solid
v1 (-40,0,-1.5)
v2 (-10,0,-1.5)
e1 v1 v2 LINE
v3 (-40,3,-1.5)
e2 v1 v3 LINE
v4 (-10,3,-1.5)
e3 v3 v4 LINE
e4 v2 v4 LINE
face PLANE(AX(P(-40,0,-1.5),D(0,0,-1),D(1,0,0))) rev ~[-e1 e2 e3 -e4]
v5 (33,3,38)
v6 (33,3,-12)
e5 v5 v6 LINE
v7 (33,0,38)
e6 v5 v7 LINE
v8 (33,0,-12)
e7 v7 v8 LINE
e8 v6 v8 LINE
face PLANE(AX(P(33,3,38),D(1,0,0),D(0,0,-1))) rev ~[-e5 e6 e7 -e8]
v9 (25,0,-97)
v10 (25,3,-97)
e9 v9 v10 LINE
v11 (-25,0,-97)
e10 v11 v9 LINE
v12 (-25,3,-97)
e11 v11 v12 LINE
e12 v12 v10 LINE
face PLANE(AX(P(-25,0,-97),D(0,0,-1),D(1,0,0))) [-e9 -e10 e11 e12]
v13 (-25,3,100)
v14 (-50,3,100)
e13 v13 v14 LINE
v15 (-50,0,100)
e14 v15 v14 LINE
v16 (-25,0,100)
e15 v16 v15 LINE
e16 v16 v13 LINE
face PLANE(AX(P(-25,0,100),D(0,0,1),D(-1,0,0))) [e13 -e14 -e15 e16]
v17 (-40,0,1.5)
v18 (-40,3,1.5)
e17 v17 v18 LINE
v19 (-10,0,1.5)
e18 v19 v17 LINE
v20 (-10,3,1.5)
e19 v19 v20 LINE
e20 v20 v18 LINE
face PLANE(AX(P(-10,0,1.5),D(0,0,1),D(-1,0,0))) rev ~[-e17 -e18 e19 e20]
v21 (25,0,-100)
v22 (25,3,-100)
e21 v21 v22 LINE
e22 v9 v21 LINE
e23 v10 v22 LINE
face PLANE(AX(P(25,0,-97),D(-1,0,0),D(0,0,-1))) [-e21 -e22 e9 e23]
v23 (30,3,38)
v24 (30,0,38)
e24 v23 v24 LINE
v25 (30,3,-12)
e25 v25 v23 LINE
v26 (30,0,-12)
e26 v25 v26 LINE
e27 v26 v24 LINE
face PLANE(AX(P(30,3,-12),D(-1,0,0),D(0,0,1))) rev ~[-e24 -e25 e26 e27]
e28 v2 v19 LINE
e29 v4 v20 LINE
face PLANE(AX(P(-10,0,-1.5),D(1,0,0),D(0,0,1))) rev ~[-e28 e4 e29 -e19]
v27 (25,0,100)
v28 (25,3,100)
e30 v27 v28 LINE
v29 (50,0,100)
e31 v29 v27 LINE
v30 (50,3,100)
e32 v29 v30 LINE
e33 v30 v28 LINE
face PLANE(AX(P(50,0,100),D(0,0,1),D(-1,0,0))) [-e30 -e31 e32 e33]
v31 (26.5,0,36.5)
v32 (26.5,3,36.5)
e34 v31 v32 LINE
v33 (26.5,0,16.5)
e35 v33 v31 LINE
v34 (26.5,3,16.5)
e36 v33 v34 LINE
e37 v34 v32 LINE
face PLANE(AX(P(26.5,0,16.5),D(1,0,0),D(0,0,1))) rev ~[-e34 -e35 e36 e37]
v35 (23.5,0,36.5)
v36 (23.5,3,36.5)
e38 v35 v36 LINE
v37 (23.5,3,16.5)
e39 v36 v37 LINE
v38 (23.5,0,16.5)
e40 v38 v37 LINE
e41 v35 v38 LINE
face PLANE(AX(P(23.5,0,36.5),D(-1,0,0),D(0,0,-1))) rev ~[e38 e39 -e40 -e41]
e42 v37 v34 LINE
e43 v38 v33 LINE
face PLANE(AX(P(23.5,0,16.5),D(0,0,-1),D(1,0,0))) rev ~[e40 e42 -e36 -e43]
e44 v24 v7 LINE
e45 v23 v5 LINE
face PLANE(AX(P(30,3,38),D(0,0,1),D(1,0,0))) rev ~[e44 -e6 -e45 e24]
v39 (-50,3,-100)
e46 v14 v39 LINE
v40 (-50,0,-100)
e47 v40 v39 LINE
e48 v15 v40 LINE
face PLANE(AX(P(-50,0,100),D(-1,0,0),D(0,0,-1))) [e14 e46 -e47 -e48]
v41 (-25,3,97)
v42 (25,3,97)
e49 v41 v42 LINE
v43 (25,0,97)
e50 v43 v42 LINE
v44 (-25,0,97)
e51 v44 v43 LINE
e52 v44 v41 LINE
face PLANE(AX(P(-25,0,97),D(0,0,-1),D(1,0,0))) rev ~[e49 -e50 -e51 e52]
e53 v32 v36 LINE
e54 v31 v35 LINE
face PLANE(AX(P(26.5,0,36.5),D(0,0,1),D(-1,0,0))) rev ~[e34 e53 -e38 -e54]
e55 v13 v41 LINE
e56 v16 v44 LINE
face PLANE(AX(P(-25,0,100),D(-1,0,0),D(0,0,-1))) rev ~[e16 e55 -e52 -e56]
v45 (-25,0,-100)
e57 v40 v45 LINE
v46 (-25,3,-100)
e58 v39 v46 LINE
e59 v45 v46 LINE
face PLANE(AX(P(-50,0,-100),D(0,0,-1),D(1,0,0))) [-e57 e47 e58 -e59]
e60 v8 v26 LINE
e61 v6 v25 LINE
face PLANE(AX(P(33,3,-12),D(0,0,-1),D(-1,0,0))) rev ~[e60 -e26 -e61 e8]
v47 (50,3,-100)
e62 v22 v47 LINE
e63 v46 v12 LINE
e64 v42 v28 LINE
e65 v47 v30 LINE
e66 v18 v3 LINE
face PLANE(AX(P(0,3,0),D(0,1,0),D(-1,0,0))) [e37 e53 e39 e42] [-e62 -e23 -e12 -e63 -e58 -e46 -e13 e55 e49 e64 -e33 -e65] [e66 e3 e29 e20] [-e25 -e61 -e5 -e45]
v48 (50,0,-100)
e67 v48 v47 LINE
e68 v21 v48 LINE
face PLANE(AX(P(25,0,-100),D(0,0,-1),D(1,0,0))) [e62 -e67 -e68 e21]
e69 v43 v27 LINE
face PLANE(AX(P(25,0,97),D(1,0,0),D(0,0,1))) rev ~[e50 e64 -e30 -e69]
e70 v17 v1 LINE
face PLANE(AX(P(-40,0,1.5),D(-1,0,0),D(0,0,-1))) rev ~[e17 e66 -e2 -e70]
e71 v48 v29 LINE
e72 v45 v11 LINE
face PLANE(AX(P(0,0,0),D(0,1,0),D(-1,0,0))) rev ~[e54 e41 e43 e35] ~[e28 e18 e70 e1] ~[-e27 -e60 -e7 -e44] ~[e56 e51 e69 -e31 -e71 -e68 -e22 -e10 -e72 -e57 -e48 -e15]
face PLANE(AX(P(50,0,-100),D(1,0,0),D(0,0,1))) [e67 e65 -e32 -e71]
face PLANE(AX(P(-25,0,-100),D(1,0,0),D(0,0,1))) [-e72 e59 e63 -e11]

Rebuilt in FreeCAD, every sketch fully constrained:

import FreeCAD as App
import Part
import Sketcher

V = App.Vector

doc = App.newDocument("Part")
body = doc.addObject("PartDesign::Body", "Body")

# Sketch on XZ plane
sketch1 = doc.addObject("Sketcher::SketchObject", "Sketch")
body.addObject(sketch1)
sketch1.AttachmentSupport = (doc.XZ_Plane, [""])
sketch1.MapMode = "FlatFace"
sketch1.addGeometry([
    Part.LineSegment(V(-50, -100, 0), V(-50, 100, 0)),  # 0
    Part.LineSegment(V(-50, 100, 0), V(-25, 100, 0)),  # 1
    Part.LineSegment(V(-25, 100, 0), V(-25, 97, 0)),  # 2
    Part.LineSegment(V(-25, 97, 0), V(25, 97, 0)),  # 3
    Part.LineSegment(V(25, 97, 0), V(25, 100, 0)),  # 4
    Part.LineSegment(V(25, 100, 0), V(50, 100, 0)),  # 5
    Part.LineSegment(V(50, 100, 0), V(50, -100, 0)),  # 6
    Part.LineSegment(V(50, -100, 0), V(25, -100, 0)),  # 7
    Part.LineSegment(V(25, -100, 0), V(25, -97, 0)),  # 8
    Part.LineSegment(V(25, -97, 0), V(-25, -97, 0)),  # 9
    Part.LineSegment(V(-25, -97, 0), V(-25, -100, 0)),  # 10
    Part.LineSegment(V(-25, -100, 0), V(-50, -100, 0)),  # 11
], False)
sketch1.addConstraint([
    Sketcher.Constraint("Coincident", 0, 2, 1, 1),
    Sketcher.Constraint("Coincident", 1, 2, 2, 1),
    Sketcher.Constraint("Coincident", 2, 2, 3, 1),
    Sketcher.Constraint("Coincident", 3, 2, 4, 1),
    Sketcher.Constraint("Coincident", 4, 2, 5, 1),
    Sketcher.Constraint("Coincident", 5, 2, 6, 1),
    Sketcher.Constraint("Coincident", 6, 2, 7, 1),
    Sketcher.Constraint("Coincident", 7, 2, 8, 1),
    Sketcher.Constraint("Coincident", 8, 2, 9, 1),
    Sketcher.Constraint("Coincident", 9, 2, 10, 1),
    Sketcher.Constraint("Coincident", 10, 2, 11, 1),
    Sketcher.Constraint("Coincident", 11, 2, 0, 1),
    Sketcher.Constraint("Vertical", 0),
    Sketcher.Constraint("Horizontal", 1),
    Sketcher.Constraint("Vertical", 2),
    Sketcher.Constraint("Horizontal", 3),
    Sketcher.Constraint("Vertical", 4),
    Sketcher.Constraint("Horizontal", 5),
    Sketcher.Constraint("Vertical", 6),
    Sketcher.Constraint("Horizontal", 7),
    Sketcher.Constraint("Vertical", 8),
    Sketcher.Constraint("Horizontal", 9),
    Sketcher.Constraint("Vertical", 10),
    Sketcher.Constraint("Horizontal", 11),
    Sketcher.Constraint("Symmetric", 0, 2, 6, 2, -1, 1),
    Sketcher.Constraint("Symmetric", 2, 2, 8, 2, -1, 1),
    Sketcher.Constraint("Symmetric", 4, 2, 10, 2, -1, 1),
    Sketcher.Constraint("Symmetric", 1, 2, 4, 2, -2),
    Sketcher.Constraint("DistanceX", 1, 1, 1, 2, 25.0),
    Sketcher.Constraint("DistanceX", 3, 1, 3, 2, 50.0),
    Sketcher.Constraint("DistanceY", 0, 1, 0, 2, 200.0),
    Sketcher.Constraint("DistanceY", 2, 2, 2, 1, 3.0),
])
pad1 = doc.addObject("PartDesign::Pad", "Pad")
body.addObject(pad1)
pad1.Profile = sketch1
pad1.Length = 3
pad1.Reversed = True

# Sketch on XZ plane
sketch2 = doc.addObject("Sketcher::SketchObject", "Sketch001")
body.addObject(sketch2)
sketch2.AttachmentSupport = (doc.XZ_Plane, [""])
sketch2.MapMode = "FlatFace"
sketch2.AttachmentOffset = App.Placement(V(0, 0, -3), App.Rotation())
sketch2.addGeometry([
    Part.LineSegment(V(33, 38, 0), V(33, -12, 0)),
    Part.LineSegment(V(33, -12, 0), V(30, -12, 0)),
    Part.LineSegment(V(30, -12, 0), V(30, 38, 0)),
    Part.LineSegment(V(30, 38, 0), V(33, 38, 0)),
], False)
sketch2.addConstraint([
    Sketcher.Constraint("Coincident", 0, 2, 1, 1),
    Sketcher.Constraint("Coincident", 1, 2, 2, 1),
    Sketcher.Constraint("Coincident", 2, 2, 3, 1),
    Sketcher.Constraint("Coincident", 3, 2, 0, 1),
    Sketcher.Constraint("Vertical", 0),
    Sketcher.Constraint("Horizontal", 1),
    Sketcher.Constraint("Vertical", 2),
    Sketcher.Constraint("Horizontal", 3),
    Sketcher.Constraint("DistanceX", 1, 2, 1, 1, 3.0),
    Sketcher.Constraint("DistanceY", 0, 2, 0, 1, 50.0),
    Sketcher.Constraint("DistanceX", -1, 1, 0, 2, 33.0),
    Sketcher.Constraint("DistanceY", 0, 2, -1, 1, 12.0),
])
pocket1 = doc.addObject("PartDesign::Pocket", "Pocket")
body.addObject(pocket1)
pocket1.Profile = sketch2
pocket1.Length = 3
pocket1.Reversed = True

# Sketch on XZ plane
sketch3 = doc.addObject("Sketcher::SketchObject", "Sketch002")
body.addObject(sketch3)
sketch3.AttachmentSupport = (doc.XZ_Plane, [""])
sketch3.MapMode = "FlatFace"
sketch3.addGeometry([
    Part.LineSegment(V(-40, 1.5, 0), V(-40, -1.5, 0)),
    Part.LineSegment(V(-40, -1.5, 0), V(-10, -1.5, 0)),
    Part.LineSegment(V(-10, -1.5, 0), V(-10, 1.5, 0)),
    Part.LineSegment(V(-10, 1.5, 0), V(-40, 1.5, 0)),
], False)
sketch3.addConstraint([
    Sketcher.Constraint("Coincident", 0, 2, 1, 1),
    Sketcher.Constraint("Coincident", 1, 2, 2, 1),
    Sketcher.Constraint("Coincident", 2, 2, 3, 1),
    Sketcher.Constraint("Coincident", 3, 2, 0, 1),
    Sketcher.Constraint("Vertical", 0),
    Sketcher.Constraint("Horizontal", 1),
    Sketcher.Constraint("Vertical", 2),
    Sketcher.Constraint("Horizontal", 3),
    Sketcher.Constraint("DistanceX", 1, 1, 1, 2, 30.0),
    Sketcher.Constraint("DistanceY", 0, 2, 0, 1, 3.0),
    Sketcher.Constraint("DistanceX", 0, 2, -1, 1, 40.0),
    Sketcher.Constraint("DistanceY", 0, 2, -1, 1, 1.5),
])
pocket2 = doc.addObject("PartDesign::Pocket", "Pocket001")
body.addObject(pocket2)
pocket2.Profile = sketch3
pocket2.Length = 3

# Sketch on XZ plane
sketch4 = doc.addObject("Sketcher::SketchObject", "Sketch003")
body.addObject(sketch4)
sketch4.AttachmentSupport = (doc.XZ_Plane, [""])
sketch4.MapMode = "FlatFace"
sketch4.addGeometry([
    Part.LineSegment(V(23.5, 36.5, 0), V(23.5, 16.5, 0)),
    Part.LineSegment(V(23.5, 16.5, 0), V(26.5, 16.5, 0)),
    Part.LineSegment(V(26.5, 16.5, 0), V(26.5, 36.5, 0)),
    Part.LineSegment(V(26.5, 36.5, 0), V(23.5, 36.5, 0)),
], False)
sketch4.addConstraint([
    Sketcher.Constraint("Coincident", 0, 2, 1, 1),
    Sketcher.Constraint("Coincident", 1, 2, 2, 1),
    Sketcher.Constraint("Coincident", 2, 2, 3, 1),
    Sketcher.Constraint("Coincident", 3, 2, 0, 1),
    Sketcher.Constraint("Vertical", 0),
    Sketcher.Constraint("Horizontal", 1),
    Sketcher.Constraint("Vertical", 2),
    Sketcher.Constraint("Horizontal", 3),
    Sketcher.Constraint("DistanceX", 1, 1, 1, 2, 3.0),
    Sketcher.Constraint("DistanceY", 0, 2, 0, 1, 20.0),
    Sketcher.Constraint("DistanceX", -1, 1, 0, 2, 23.5),
    Sketcher.Constraint("DistanceY", -1, 1, 0, 2, 16.5),
])
pocket3 = doc.addObject("PartDesign::Pocket", "Pocket002")
body.addObject(pocket3)
pocket3.Profile = sketch4
pocket3.Length = 3

doc.recompute()
